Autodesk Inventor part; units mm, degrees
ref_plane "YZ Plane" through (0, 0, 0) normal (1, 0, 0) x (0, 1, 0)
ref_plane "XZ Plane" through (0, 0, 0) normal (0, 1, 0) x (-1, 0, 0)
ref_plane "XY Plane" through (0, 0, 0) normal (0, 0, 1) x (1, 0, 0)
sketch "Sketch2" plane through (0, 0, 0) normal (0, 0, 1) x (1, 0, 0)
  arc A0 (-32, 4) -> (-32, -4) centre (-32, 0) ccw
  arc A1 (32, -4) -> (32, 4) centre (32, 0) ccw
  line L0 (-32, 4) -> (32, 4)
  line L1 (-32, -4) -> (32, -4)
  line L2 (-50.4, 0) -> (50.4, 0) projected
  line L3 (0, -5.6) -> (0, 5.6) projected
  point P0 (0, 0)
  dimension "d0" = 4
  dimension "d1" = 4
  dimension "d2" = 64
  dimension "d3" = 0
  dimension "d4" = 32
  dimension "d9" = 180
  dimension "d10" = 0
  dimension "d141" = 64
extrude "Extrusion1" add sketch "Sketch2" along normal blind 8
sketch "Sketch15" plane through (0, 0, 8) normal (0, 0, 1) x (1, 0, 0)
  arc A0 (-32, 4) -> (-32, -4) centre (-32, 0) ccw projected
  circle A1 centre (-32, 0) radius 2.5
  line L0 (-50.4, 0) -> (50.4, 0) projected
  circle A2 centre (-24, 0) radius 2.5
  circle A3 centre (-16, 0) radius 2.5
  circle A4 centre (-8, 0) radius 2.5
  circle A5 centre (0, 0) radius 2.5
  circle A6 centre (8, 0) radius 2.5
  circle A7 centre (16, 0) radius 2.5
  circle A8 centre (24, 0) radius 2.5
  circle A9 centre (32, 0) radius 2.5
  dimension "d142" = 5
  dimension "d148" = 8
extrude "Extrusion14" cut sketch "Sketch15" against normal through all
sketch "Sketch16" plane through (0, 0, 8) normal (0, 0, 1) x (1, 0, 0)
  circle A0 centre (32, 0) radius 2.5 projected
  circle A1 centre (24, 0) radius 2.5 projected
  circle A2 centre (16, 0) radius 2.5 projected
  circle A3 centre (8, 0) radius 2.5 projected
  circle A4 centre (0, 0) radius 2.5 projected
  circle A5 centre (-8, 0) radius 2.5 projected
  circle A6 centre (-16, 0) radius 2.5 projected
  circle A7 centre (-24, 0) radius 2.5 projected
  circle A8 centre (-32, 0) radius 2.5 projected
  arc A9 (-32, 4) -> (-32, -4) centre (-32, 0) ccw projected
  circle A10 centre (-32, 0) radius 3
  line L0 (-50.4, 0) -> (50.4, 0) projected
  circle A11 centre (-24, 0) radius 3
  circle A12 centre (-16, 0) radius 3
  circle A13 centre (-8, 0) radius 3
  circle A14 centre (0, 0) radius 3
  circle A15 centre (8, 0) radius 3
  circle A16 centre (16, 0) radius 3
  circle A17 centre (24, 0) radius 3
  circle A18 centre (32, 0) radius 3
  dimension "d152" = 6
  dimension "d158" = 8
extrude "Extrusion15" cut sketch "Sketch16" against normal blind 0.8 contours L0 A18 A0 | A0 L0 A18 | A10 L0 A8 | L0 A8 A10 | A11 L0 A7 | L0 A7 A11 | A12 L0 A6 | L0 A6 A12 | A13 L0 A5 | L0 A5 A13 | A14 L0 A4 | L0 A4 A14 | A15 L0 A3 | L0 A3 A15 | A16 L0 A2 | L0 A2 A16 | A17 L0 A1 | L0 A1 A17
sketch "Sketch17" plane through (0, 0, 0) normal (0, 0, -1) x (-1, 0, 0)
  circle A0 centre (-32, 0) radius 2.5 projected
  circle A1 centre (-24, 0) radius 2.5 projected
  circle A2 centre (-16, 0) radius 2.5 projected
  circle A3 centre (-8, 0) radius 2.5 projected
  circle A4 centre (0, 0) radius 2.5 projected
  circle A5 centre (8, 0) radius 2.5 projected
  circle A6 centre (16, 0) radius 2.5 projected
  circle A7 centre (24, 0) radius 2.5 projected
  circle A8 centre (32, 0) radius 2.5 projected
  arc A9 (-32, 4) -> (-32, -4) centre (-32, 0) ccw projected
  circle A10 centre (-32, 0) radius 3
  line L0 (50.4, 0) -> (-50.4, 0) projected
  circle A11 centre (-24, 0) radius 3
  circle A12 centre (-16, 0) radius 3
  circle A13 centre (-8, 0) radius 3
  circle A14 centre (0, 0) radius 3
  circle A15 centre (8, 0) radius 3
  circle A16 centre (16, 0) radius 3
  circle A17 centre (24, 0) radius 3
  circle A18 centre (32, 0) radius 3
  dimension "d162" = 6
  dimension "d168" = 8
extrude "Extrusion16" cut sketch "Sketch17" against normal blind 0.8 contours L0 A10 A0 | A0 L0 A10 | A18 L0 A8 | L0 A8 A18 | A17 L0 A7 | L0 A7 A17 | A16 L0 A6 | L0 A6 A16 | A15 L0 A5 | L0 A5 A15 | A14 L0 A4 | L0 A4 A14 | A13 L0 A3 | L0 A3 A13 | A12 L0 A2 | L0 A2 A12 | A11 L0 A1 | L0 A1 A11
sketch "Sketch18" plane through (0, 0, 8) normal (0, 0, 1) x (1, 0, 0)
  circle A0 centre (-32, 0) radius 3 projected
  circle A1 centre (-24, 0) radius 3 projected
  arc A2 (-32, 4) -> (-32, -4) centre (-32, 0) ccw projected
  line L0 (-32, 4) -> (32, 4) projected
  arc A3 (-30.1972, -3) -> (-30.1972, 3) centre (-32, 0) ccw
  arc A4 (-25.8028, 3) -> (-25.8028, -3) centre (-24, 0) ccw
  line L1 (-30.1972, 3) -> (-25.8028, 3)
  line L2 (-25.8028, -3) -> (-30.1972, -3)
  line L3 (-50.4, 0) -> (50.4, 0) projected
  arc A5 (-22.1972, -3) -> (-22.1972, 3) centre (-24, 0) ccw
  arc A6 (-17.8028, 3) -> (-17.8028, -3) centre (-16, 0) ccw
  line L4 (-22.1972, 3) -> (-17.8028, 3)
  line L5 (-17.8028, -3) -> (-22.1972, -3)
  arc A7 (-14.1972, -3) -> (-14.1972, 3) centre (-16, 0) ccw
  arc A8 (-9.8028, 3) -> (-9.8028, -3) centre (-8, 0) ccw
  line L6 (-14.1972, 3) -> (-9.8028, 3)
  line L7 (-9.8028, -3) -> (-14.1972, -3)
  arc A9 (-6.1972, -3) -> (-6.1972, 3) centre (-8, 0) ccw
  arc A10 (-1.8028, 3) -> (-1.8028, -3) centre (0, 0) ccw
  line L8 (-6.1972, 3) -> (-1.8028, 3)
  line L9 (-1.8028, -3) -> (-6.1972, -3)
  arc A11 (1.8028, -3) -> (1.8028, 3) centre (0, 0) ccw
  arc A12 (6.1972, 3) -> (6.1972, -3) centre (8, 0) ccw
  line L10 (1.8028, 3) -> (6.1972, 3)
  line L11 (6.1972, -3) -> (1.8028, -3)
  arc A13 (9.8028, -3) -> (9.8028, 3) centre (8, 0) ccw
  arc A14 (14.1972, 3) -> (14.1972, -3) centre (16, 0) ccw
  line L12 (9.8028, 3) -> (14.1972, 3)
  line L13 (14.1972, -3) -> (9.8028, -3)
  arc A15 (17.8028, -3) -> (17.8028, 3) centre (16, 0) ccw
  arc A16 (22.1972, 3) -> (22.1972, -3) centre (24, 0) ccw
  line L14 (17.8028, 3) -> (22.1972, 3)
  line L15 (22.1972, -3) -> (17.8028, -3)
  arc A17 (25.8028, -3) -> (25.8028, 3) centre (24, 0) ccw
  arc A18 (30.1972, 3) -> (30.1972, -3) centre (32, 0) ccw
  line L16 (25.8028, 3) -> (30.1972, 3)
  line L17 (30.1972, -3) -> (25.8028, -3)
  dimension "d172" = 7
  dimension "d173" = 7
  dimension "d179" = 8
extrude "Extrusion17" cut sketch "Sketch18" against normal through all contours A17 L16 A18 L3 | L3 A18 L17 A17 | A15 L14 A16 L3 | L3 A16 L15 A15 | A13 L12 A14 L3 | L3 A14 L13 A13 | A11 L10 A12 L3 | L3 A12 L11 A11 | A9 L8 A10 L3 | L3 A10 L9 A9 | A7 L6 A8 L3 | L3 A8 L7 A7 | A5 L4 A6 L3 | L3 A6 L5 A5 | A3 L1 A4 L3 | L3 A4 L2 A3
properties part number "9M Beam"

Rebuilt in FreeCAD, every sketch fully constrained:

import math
import FreeCAD as App
import Part
import Sketcher
from FreeCAD import Vector
Q = App.Units.Quantity

doc = App.newDocument("Part")
body = doc.addObject("PartDesign::Body", "Body")

# Sketch on XY plane
sketch1 = body.newObject("Sketcher::SketchObject", "Sketch")
sketch1.AttachmentSupport = (doc.getObject("XY_Plane"), [""])
sketch1.MapMode = "FlatFace"
sketch1.addGeometry([
    Part.ArcOfCircle(Part.Circle(Vector(-32, 0, 0), Vector(0, 0, 1), 4), math.radians(90), math.radians(270)),
    Part.LineSegment(Vector(-32, -4, 0), Vector(32, -4, 0)),
    Part.ArcOfCircle(Part.Circle(Vector(32, 0, 0), Vector(0, 0, 1), 4), math.radians(-90), math.radians(90)),
    Part.LineSegment(Vector(32, 4, 0), Vector(-32, 4, 0)),
], False)
sketch1.addConstraint([
    Sketcher.Constraint("Tangent", 0, 2, 1, 1),
    Sketcher.Constraint("Tangent", 1, 2, 2, 1),
    Sketcher.Constraint("Tangent", 2, 2, 3, 1),
    Sketcher.Constraint("Tangent", 3, 2, 0, 1),
    Sketcher.Constraint("Horizontal", 1),
    Sketcher.Constraint("Horizontal", 3),
    Sketcher.Constraint("Symmetric", 0, 3, 2, 3, -1, 1),
    Sketcher.Constraint("Radius", 0, Q("4 mm")),
    Sketcher.Constraint("DistanceX", 1, 1, 1, 2, Q("64 mm")),
])
pad1 = body.newObject("PartDesign::Pad", "Pad")
pad1.Profile = sketch1
pad1.Length = 8

# Sketch on XY plane
sketch2 = body.newObject("Sketcher::SketchObject", "Sketch001")
sketch2.AttachmentSupport = (doc.getObject("XY_Plane"), [""])
sketch2.MapMode = "FlatFace"
sketch2.AttachmentOffset = App.Placement(Vector(0, 0, 8), App.Rotation())
sketch2.addGeometry([
    Part.Circle(Vector(-32, 0, 0), Vector(0, 0, 1), 2.5),  # 0
    Part.Circle(Vector(32, 0, 0), Vector(0, 0, 1), 2.5),  # 1
    Part.Circle(Vector(24, 0, 0), Vector(0, 0, 1), 2.5),  # 2
    Part.Circle(Vector(16, 0, 0), Vector(0, 0, 1), 2.5),  # 3
    Part.Circle(Vector(8, 0, 0), Vector(0, 0, 1), 2.5),  # 4
    Part.Circle(Vector(0, 0, 0), Vector(0, 0, 1), 2.5),  # 5
    Part.Circle(Vector(-8, 0, 0), Vector(0, 0, 1), 2.5),  # 6
    Part.Circle(Vector(-16, 0, 0), Vector(0, 0, 1), 2.5),  # 7
    Part.Circle(Vector(-24, 0, 0), Vector(0, 0, 1), 2.5),  # 8
], False)
sketch2.addConstraint([
    Sketcher.Constraint("Coincident", 5, 3, -1, 1),
    Sketcher.Constraint("Equal", 0, 1),
    Sketcher.Constraint("Equal", 1, 2),
    Sketcher.Constraint("Equal", 2, 3),
    Sketcher.Constraint("Equal", 3, 4),
    Sketcher.Constraint("Equal", 4, 5),
    Sketcher.Constraint("Equal", 5, 6),
    Sketcher.Constraint("Equal", 6, 7),
    Sketcher.Constraint("Equal", 7, 8),
    Sketcher.Constraint("Symmetric", 0, 3, 1, 3, -1, 1),
    Sketcher.Constraint("Symmetric", 4, 3, 6, 3, -1, 1),
    Sketcher.Constraint("Symmetric", 3, 3, 7, 3, -1, 1),
    Sketcher.Constraint("Symmetric", 2, 3, 8, 3, -1, 1),
    Sketcher.Constraint("PointOnObject", 0, 3, -1),
    Sketcher.Constraint("PointOnObject", 2, 3, -1),
    Sketcher.Constraint("PointOnObject", 3, 3, -1),
    Sketcher.Constraint("PointOnObject", 4, 3, -1),
    Sketcher.Constraint("Diameter", 0, Q("5 mm")),
    Sketcher.Constraint("DistanceX", -1, 1, 4, 3, Q("8 mm")),
    Sketcher.Constraint("DistanceX", 2, 3, 1, 3, Q("8 mm")),
    Sketcher.Constraint("DistanceX", 3, 3, 2, 3, Q("8 mm")),
    Sketcher.Constraint("DistanceX", 4, 3, 3, 3, Q("8 mm")),
])
pocket1 = body.newObject("PartDesign::Pocket", "Pocket")
pocket1.Profile = sketch2
pocket1.Type = "ThroughAll"

# Sketch on XY plane
sketch3 = body.newObject("Sketcher::SketchObject", "Sketch002")
sketch3.AttachmentSupport = (doc.getObject("XY_Plane"), [""])
sketch3.MapMode = "FlatFace"
sketch3.AttachmentOffset = App.Placement(Vector(0, 0, 8), App.Rotation())
sketch3.addGeometry([
    Part.Circle(Vector(32, 0, 0), Vector(0, 0, 1), 3),  # 0
    Part.Circle(Vector(32, 0, 0), Vector(0, 0, 1), 2.5),  # 1
    Part.Circle(Vector(-32, 0, 0), Vector(0, 0, 1), 3),  # 2
    Part.Circle(Vector(-32, 0, 0), Vector(0, 0, 1), 2.5),  # 3
    Part.Circle(Vector(-24, 0, 0), Vector(0, 0, 1), 3),  # 4
    Part.Circle(Vector(-24, 0, 0), Vector(0, 0, 1), 2.5),  # 5
    Part.Circle(Vector(-16, 0, 0), Vector(0, 0, 1), 3),  # 6
    Part.Circle(Vector(-16, 0, 0), Vector(0, 0, 1), 2.5),  # 7
    Part.Circle(Vector(-8, 0, 0), Vector(0, 0, 1), 3),  # 8
    Part.Circle(Vector(-8, 0, 0), Vector(0, 0, 1), 2.5),  # 9
    Part.Circle(Vector(0, 0, 0), Vector(0, 0, 1), 3),  # 10
    Part.Circle(Vector(0, 0, 0), Vector(0, 0, 1), 2.5),  # 11
    Part.Circle(Vector(8, 0, 0), Vector(0, 0, 1), 3),  # 12
    Part.Circle(Vector(8, 0, 0), Vector(0, 0, 1), 2.5),  # 13
    Part.Circle(Vector(16, 0, 0), Vector(0, 0, 1), 3),  # 14
    Part.Circle(Vector(16, 0, 0), Vector(0, 0, 1), 2.5),  # 15
    Part.Circle(Vector(24, 0, 0), Vector(0, 0, 1), 3),  # 16
    Part.Circle(Vector(24, 0, 0), Vector(0, 0, 1), 2.5),  # 17
], False)
sketch3.addConstraint([
    Sketcher.Constraint("Coincident", 10, 3, -1, 1),
    Sketcher.Constraint("Coincident", 11, 3, -1, 1),
    Sketcher.Constraint("Coincident", 1, 3, 0, 3),
    Sketcher.Constraint("Coincident", 3, 3, 2, 3),
    Sketcher.Constraint("Coincident", 5, 3, 4, 3),
    Sketcher.Constraint("Coincident", 7, 3, 6, 3),
    Sketcher.Constraint("Coincident", 9, 3, 8, 3),
    Sketcher.Constraint("Coincident", 13, 3, 12, 3),
    Sketcher.Constraint("Coincident", 15, 3, 14, 3),
    Sketcher.Constraint("Coincident", 17, 3, 16, 3),
    Sketcher.Constraint("Equal", 0, 2),
    Sketcher.Constraint("Equal", 1, 3),
    Sketcher.Constraint("Equal", 2, 4),
    Sketcher.Constraint("Equal", 3, 5),
    Sketcher.Constraint("Equal", 4, 6),
    Sketcher.Constraint("Equal", 5, 7),
    Sketcher.Constraint("Equal", 6, 8),
    Sketcher.Constraint("Equal", 7, 9),
    Sketcher.Constraint("Equal", 8, 10),
    Sketcher.Constraint("Equal", 9, 11),
    Sketcher.Constraint("Equal", 10, 12),
    Sketcher.Constraint("Equal", 11, 13),
    Sketcher.Constraint("Equal", 12, 14),
    Sketcher.Constraint("Equal", 13, 15),
    Sketcher.Constraint("Equal", 14, 16),
    Sketcher.Constraint("Equal", 15, 17),
    Sketcher.Constraint("Symmetric", 0, 3, 2, 3, -1, 1),
    Sketcher.Constraint("Symmetric", 8, 3, 12, 3, -1, 1),
    Sketcher.Constraint("Symmetric", 6, 3, 14, 3, -1, 1),
    Sketcher.Constraint("Symmetric", 4, 3, 16, 3, -1, 1),
    Sketcher.Constraint("PointOnObject", 0, 3, -1),
    Sketcher.Constraint("PointOnObject", 4, 3, -1),
    Sketcher.Constraint("PointOnObject", 6, 3, -1),
    Sketcher.Constraint("PointOnObject", 8, 3, -1),
    Sketcher.Constraint("Diameter", 0, Q("6 mm")),
    Sketcher.Constraint("Diameter", 1, Q("5 mm")),
    Sketcher.Constraint("DistanceX", 8, 3, -1, 1, Q("8 mm")),
    Sketcher.Constraint("DistanceX", 2, 3, 4, 3, Q("8 mm")),
    Sketcher.Constraint("DistanceX", 4, 3, 6, 3, Q("8 mm")),
    Sketcher.Constraint("DistanceX", 6, 3, 8, 3, Q("8 mm")),
])
pocket2 = body.newObject("PartDesign::Pocket", "Pocket001")
pocket2.Profile = sketch3
pocket2.Length = 0.8

# Sketch on XY plane
sketch4 = body.newObject("Sketcher::SketchObject", "Sketch003")
sketch4.AttachmentSupport = (doc.getObject("XY_Plane"), [""])
sketch4.MapMode = "FlatFace"
sketch4.addGeometry([
    Part.Circle(Vector(32, 0, 0), Vector(0, 0, 1), 3),  # 0
    Part.Circle(Vector(32, 0, 0), Vector(0, 0, 1), 2.5),  # 1
    Part.Circle(Vector(-32, 0, 0), Vector(0, 0, 1), 3),  # 2
    Part.Circle(Vector(-32, 0, 0), Vector(0, 0, 1), 2.5),  # 3
    Part.Circle(Vector(-24, 0, 0), Vector(0, 0, 1), 3),  # 4
    Part.Circle(Vector(-24, 0, 0), Vector(0, 0, 1), 2.5),  # 5
    Part.Circle(Vector(-16, 0, 0), Vector(0, 0, 1), 3),  # 6
    Part.Circle(Vector(-16, 0, 0), Vector(0, 0, 1), 2.5),  # 7
    Part.Circle(Vector(-8, 0, 0), Vector(0, 0, 1), 3),  # 8
    Part.Circle(Vector(-8, 0, 0), Vector(0, 0, 1), 2.5),  # 9
    Part.Circle(Vector(0, 0, 0), Vector(0, 0, 1), 3),  # 10
    Part.Circle(Vector(0, 0, 0), Vector(0, 0, 1), 2.5),  # 11
    Part.Circle(Vector(8, 0, 0), Vector(0, 0, 1), 3),  # 12
    Part.Circle(Vector(8, 0, 0), Vector(0, 0, 1), 2.5),  # 13
    Part.Circle(Vector(16, 0, 0), Vector(0, 0, 1), 3),  # 14
    Part.Circle(Vector(16, 0, 0), Vector(0, 0, 1), 2.5),  # 15
    Part.Circle(Vector(24, 0, 0), Vector(0, 0, 1), 3),  # 16
    Part.Circle(Vector(24, 0, 0), Vector(0, 0, 1), 2.5),  # 17
], False)
sketch4.addConstraint([
    Sketcher.Constraint("Coincident", 10, 3, -1, 1),
    Sketcher.Constraint("Coincident", 11, 3, -1, 1),
    Sketcher.Constraint("Coincident", 1, 3, 0, 3),
    Sketcher.Constraint("Coincident", 3, 3, 2, 3),
    Sketcher.Constraint("Coincident", 5, 3, 4, 3),
    Sketcher.Constraint("Coincident", 7, 3, 6, 3),
    Sketcher.Constraint("Coincident", 9, 3, 8, 3),
    Sketcher.Constraint("Coincident", 13, 3, 12, 3),
    Sketcher.Constraint("Coincident", 15, 3, 14, 3),
    Sketcher.Constraint("Coincident", 17, 3, 16, 3),
    Sketcher.Constraint("Equal", 0, 2),
    Sketcher.Constraint("Equal", 1, 3),
    Sketcher.Constraint("Equal", 2, 4),
    Sketcher.Constraint("Equal", 3, 5),
    Sketcher.Constraint("Equal", 4, 6),
    Sketcher.Constraint("Equal", 5, 7),
    Sketcher.Constraint("Equal", 6, 8),
    Sketcher.Constraint("Equal", 7, 9),
    Sketcher.Constraint("Equal", 8, 10),
    Sketcher.Constraint("Equal", 9, 11),
    Sketcher.Constraint("Equal", 10, 12),
    Sketcher.Constraint("Equal", 11, 13),
    Sketcher.Constraint("Equal", 12, 14),
    Sketcher.Constraint("Equal", 13, 15),
    Sketcher.Constraint("Equal", 14, 16),
    Sketcher.Constraint("Equal", 15, 17),
    Sketcher.Constraint("Symmetric", 0, 3, 2, 3, -1, 1),
    Sketcher.Constraint("Symmetric", 8, 3, 12, 3, -1, 1),
    Sketcher.Constraint("Symmetric", 6, 3, 14, 3, -1, 1),
    Sketcher.Constraint("Symmetric", 4, 3, 16, 3, -1, 1),
    Sketcher.Constraint("PointOnObject", 0, 3, -1),
    Sketcher.Constraint("PointOnObject", 4, 3, -1),
    Sketcher.Constraint("PointOnObject", 6, 3, -1),
    Sketcher.Constraint("PointOnObject", 8, 3, -1),
    Sketcher.Constraint("Diameter", 0, Q("6 mm")),
    Sketcher.Constraint("Diameter", 1, Q("5 mm")),
    Sketcher.Constraint("DistanceX", 8, 3, -1, 1, Q("8 mm")),
    Sketcher.Constraint("DistanceX", 2, 3, 4, 3, Q("8 mm")),
    Sketcher.Constraint("DistanceX", 4, 3, 6, 3, Q("8 mm")),
    Sketcher.Constraint("DistanceX", 6, 3, 8, 3, Q("8 mm")),
])
pocket3 = body.newObject("PartDesign::Pocket", "Pocket002")
pocket3.Profile = sketch4
pocket3.Length = 0.8
pocket3.Reversed = True

# Sketch on XY plane
sketch5 = body.newObject("Sketcher::SketchObject", "Sketch004")
sketch5.AttachmentSupport = (doc.getObject("XY_Plane"), [""])
sketch5.MapMode = "FlatFace"
sketch5.AttachmentOffset = App.Placement(Vector(0, 0, 8), App.Rotation())
sketch5.addGeometry([
    Part.ArcOfCircle(Part.Circle(Vector(24, 0, 0), Vector(0, 0, 1), 3.5), math.radians(-59), math.radians(59)),  # 0
    Part.LineSegment(Vector(25.8, -3, 0), Vector(30.2, -3, 0)),  # 1
    Part.ArcOfCircle(Part.Circle(Vector(32, 0, 0), Vector(0, 0, 1), 3.5), math.radians(121), math.radians(239)),  # 2
    Part.LineSegment(Vector(30.2, 3, 0), Vector(25.8, 3, 0)),  # 3
    Part.ArcOfCircle(Part.Circle(Vector(16, 0, 0), Vector(0, 0, 1), 3.5), math.radians(-59), math.radians(59)),  # 4
    Part.LineSegment(Vector(17.8, -3, 0), Vector(22.2, -3, 0)),  # 5
    Part.ArcOfCircle(Part.Circle(Vector(24, 0, 0), Vector(0, 0, 1), 3.5), math.radians(121), math.radians(239)),  # 6
    Part.LineSegment(Vector(22.2, 3, 0), Vector(17.8, 3, 0)),  # 7
    Part.ArcOfCircle(Part.Circle(Vector(8, 0, 0), Vector(0, 0, 1), 3.5), math.radians(-59), math.radians(59)),  # 8
    Part.LineSegment(Vector(9.8, -3, 0), Vector(14.2, -3, 0)),  # 9
    Part.ArcOfCircle(Part.Circle(Vector(16, 0, 0), Vector(0, 0, 1), 3.5), math.radians(121), math.radians(239)),  # 10
    Part.LineSegment(Vector(14.2, 3, 0), Vector(9.8, 3, 0)),  # 11
    Part.ArcOfCircle(Part.Circle(Vector(0, 0, 0), Vector(0, 0, 1), 3.5), math.radians(-59), math.radians(59)),  # 12
    Part.LineSegment(Vector(1.8, -3, 0), Vector(6.2, -3, 0)),  # 13
    Part.ArcOfCircle(Part.Circle(Vector(8, 0, 0), Vector(0, 0, 1), 3.5), math.radians(121), math.radians(239)),  # 14
    Part.LineSegment(Vector(6.2, 3, 0), Vector(1.8, 3, 0)),  # 15
    Part.ArcOfCircle(Part.Circle(Vector(-8, 0, 0), Vector(0, 0, 1), 3.5), math.radians(-59), math.radians(59)),  # 16
    Part.LineSegment(Vector(-6.2, -3, 0), Vector(-1.8, -3, 0)),  # 17
    Part.ArcOfCircle(Part.Circle(Vector(0, 0, 0), Vector(0, 0, 1), 3.5), math.radians(121), math.radians(239)),  # 18
    Part.LineSegment(Vector(-1.8, 3, 0), Vector(-6.2, 3, 0)),  # 19
    Part.ArcOfCircle(Part.Circle(Vector(-16, 0, 0), Vector(0, 0, 1), 3.5), math.radians(-59), math.radians(59)),  # 20
    Part.LineSegment(Vector(-14.2, -3, 0), Vector(-9.8, -3, 0)),  # 21
    Part.ArcOfCircle(Part.Circle(Vector(-8, 0, 0), Vector(0, 0, 1), 3.5), math.radians(121), math.radians(239)),  # 22
    Part.LineSegment(Vector(-9.8, 3, 0), Vector(-14.2, 3, 0)),  # 23
    Part.ArcOfCircle(Part.Circle(Vector(-24, 0, 0), Vector(0, 0, 1), 3.5), math.radians(-59), math.radians(59)),  # 24
    Part.LineSegment(Vector(-22.2, -3, 0), Vector(-17.8, -3, 0)),  # 25
    Part.ArcOfCircle(Part.Circle(Vector(-16, 0, 0), Vector(0, 0, 1), 3.5), math.radians(121), math.radians(239)),  # 26
    Part.LineSegment(Vector(-17.8, 3, 0), Vector(-22.2, 3, 0)),  # 27
    Part.ArcOfCircle(Part.Circle(Vector(-32, 0, 0), Vector(0, 0, 1), 3.5), math.radians(-59), math.radians(59)),  # 28
    Part.LineSegment(Vector(-30.2, -3, 0), Vector(-25.8, -3, 0)),  # 29
    Part.ArcOfCircle(Part.Circle(Vector(-24, 0, 0), Vector(0, 0, 1), 3.5), math.radians(121), math.radians(239)),  # 30
    Part.LineSegment(Vector(-25.8, 3, 0), Vector(-30.2, 3, 0)),  # 31
], False)
sketch5.addConstraint([
    Sketcher.Constraint("Coincident", 0, 1, 1, 1),
    Sketcher.Constraint("Coincident", 1, 2, 2, 2),
    Sketcher.Constraint("Coincident", 2, 1, 3, 1),
    Sketcher.Constraint("Coincident", 3, 2, 0, 2),
    Sketcher.Constraint("Coincident", 4, 1, 5, 1),
    Sketcher.Constraint("Coincident", 5, 2, 6, 2),
    Sketcher.Constraint("Coincident", 6, 1, 7, 1),
    Sketcher.Constraint("Coincident", 7, 2, 4, 2),
    Sketcher.Constraint("Coincident", 8, 1, 9, 1),
    Sketcher.Constraint("Coincident", 9, 2, 10, 2),
    Sketcher.Constraint("Coincident", 10, 1, 11, 1),
    Sketcher.Constraint("Coincident", 11, 2, 8, 2),
    Sketcher.Constraint("Coincident", 12, 1, 13, 1),
    Sketcher.Constraint("Coincident", 13, 2, 14, 2),
    Sketcher.Constraint("Coincident", 14, 1, 15, 1),
    Sketcher.Constraint("Coincident", 15, 2, 12, 2),
    Sketcher.Constraint("Coincident", 16, 1, 17, 1),
    Sketcher.Constraint("Coincident", 17, 2, 18, 2),
    Sketcher.Constraint("Coincident", 18, 1, 19, 1),
    Sketcher.Constraint("Coincident", 19, 2, 16, 2),
    Sketcher.Constraint("Coincident", 20, 1, 21, 1),
    Sketcher.Constraint("Coincident", 21, 2, 22, 2),
    Sketcher.Constraint("Coincident", 22, 1, 23, 1),
    Sketcher.Constraint("Coincident", 23, 2, 20, 2),
    Sketcher.Constraint("Coincident", 24, 1, 25, 1),
    Sketcher.Constraint("Coincident", 25, 2, 26, 2),
    Sketcher.Constraint("Coincident", 26, 1, 27, 1),
    Sketcher.Constraint("Coincident", 27, 2, 24, 2),
    Sketcher.Constraint("Coincident", 28, 1, 29, 1),
    Sketcher.Constraint("Coincident", 29, 2, 30, 2),
    Sketcher.Constraint("Coincident", 30, 1, 31, 1),
    Sketcher.Constraint("Coincident", 31, 2, 28, 2),
    Sketcher.Constraint("Horizontal", 1),
    Sketcher.Constraint("Horizontal", 3),
    Sketcher.Constraint("Horizontal", 5),
    Sketcher.Constraint("Horizontal", 7),
    Sketcher.Constraint("Horizontal", 9),
    Sketcher.Constraint("Horizontal", 11),
    Sketcher.Constraint("Horizontal", 13),
    Sketcher.Constraint("Horizontal", 15),
    Sketcher.Constraint("Horizontal", 17),
    Sketcher.Constraint("Horizontal", 19),
    Sketcher.Constraint("Horizontal", 21),
    Sketcher.Constraint("Horizontal", 23),
    Sketcher.Constraint("Horizontal", 25),
    Sketcher.Constraint("Horizontal", 27),
    Sketcher.Constraint("Horizontal", 29),
    Sketcher.Constraint("Horizontal", 31),
    Sketcher.Constraint("Coincident", 12, 3, -1, 1),
    Sketcher.Constraint("Coincident", 18, 3, -1, 1),
    Sketcher.Constraint("Coincident", 6, 3, 0, 3),
    Sketcher.Constraint("Coincident", 10, 3, 4, 3),
    Sketcher.Constraint("Coincident", 14, 3, 8, 3),
    Sketcher.Constraint("Coincident", 22, 3, 16, 3),
    Sketcher.Constraint("Coincident", 26, 3, 20, 3),
    Sketcher.Constraint("Coincident", 30, 3, 24, 3),
    Sketcher.Constraint("Equal", 0, 2),
    Sketcher.Constraint("Equal", 2, 4),
    Sketcher.Constraint("Equal", 4, 6),
    Sketcher.Constraint("Equal", 6, 8),
    Sketcher.Constraint("Equal", 8, 10),
    Sketcher.Constraint("Equal", 10, 12),
    Sketcher.Constraint("Equal", 12, 14),
    Sketcher.Constraint("Equal", 14, 16),
    Sketcher.Constraint("Equal", 16, 18),
    Sketcher.Constraint("Equal", 18, 20),
    Sketcher.Constraint("Equal", 20, 22),
    Sketcher.Constraint("Equal", 22, 24),
    Sketcher.Constraint("Equal", 24, 26),
    Sketcher.Constraint("Equal", 26, 28),
    Sketcher.Constraint("Equal", 28, 30),
    Sketcher.Constraint("Symmetric", 8, 3, 16, 3, -1, 1),
    Sketcher.Constraint("Symmetric", 4, 3, 20, 3, -1, 1),
    Sketcher.Constraint("Symmetric", 0, 3, 24, 3, -1, 1),
    Sketcher.Constraint("Symmetric", 2, 3, 28, 3, -1, 1),
    Sketcher.Constraint("Symmetric", 13, 2, 16, 1, -2),
    Sketcher.Constraint("Symmetric", 9, 2, 20, 1, -2),
    Sketcher.Constraint("Symmetric", 5, 2, 24, 1, -2),
    Sketcher.Constraint("Symmetric", 1, 2, 28, 1, -2),
    Sketcher.Constraint("Horizontal", 1, 2, 4, 1),
    Sketcher.Constraint("Horizontal", 3, 2, 6, 1),
    Sketcher.Constraint("Horizontal", 5, 2, 8, 1),
    Sketcher.Constraint("Horizontal", 7, 2, 10, 1),
    Sketcher.Constraint("Horizontal", 9, 2, 12, 1),
    Sketcher.Constraint("Horizontal", 11, 2, 14, 1),
    Sketcher.Constraint("Horizontal", 15, 2, 18, 1),
    Sketcher.Constraint("Horizontal", 19, 2, 22, 1),
    Sketcher.Constraint("Horizontal", 23, 2, 26, 1),
    Sketcher.Constraint("Horizontal", 27, 2, 30, 1),
    Sketcher.Constraint("Vertical", 1, 2, 2, 1),
    Sketcher.Constraint("Equal", 3, 5),
    Sketcher.Constraint("Equal", 7, 9),
    Sketcher.Constraint("Equal", 11, 13),
    Sketcher.Constraint("Radius", 0, Q("3.5 mm")),
    Sketcher.Constraint("DistanceX", -1, 1, 8, 3, Q("8 mm")),
    Sketcher.Constraint("DistanceY", 0, 1, -1, 1, Q("3 mm")),
])
pocket4 = body.newObject("PartDesign::Pocket", "Pocket003")
pocket4.Profile = sketch5
pocket4.Type = "ThroughAll"

doc.recompute()
